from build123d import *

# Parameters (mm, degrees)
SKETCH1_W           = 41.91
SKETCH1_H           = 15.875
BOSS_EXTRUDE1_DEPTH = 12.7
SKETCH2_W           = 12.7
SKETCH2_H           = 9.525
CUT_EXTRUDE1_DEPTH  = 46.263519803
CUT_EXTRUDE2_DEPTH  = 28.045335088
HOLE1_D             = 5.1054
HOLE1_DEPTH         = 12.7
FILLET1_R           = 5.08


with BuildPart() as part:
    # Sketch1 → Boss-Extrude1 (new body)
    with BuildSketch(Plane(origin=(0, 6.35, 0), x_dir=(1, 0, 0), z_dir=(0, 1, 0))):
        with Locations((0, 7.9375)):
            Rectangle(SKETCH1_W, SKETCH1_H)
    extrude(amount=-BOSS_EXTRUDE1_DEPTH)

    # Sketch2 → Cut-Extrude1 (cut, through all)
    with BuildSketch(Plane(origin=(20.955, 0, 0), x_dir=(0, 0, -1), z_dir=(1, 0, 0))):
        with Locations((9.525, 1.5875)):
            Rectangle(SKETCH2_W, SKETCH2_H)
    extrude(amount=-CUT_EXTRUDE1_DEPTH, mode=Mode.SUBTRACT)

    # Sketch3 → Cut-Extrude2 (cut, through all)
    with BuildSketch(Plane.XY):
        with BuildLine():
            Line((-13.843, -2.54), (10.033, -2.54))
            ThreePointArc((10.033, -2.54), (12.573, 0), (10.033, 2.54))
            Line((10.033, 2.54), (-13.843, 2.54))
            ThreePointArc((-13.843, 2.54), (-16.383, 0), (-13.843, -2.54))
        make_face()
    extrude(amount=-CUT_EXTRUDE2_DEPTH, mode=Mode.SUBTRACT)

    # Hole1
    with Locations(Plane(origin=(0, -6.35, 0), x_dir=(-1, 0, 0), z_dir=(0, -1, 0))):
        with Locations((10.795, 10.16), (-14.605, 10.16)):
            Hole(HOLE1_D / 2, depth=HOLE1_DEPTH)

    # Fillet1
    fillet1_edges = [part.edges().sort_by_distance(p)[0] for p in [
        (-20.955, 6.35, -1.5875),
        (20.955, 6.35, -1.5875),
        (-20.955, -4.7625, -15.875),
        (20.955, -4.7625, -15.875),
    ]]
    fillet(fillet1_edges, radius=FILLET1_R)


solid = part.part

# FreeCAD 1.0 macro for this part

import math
import FreeCAD as App
import Part
import Sketcher
from FreeCAD import Vector
Q = App.Units.Quantity


def edges_at(feature, points):
    """Names of the edges that pass closest to the given points."""
    edges = feature.Shape.Edges
    near = lambda p: min(range(len(edges)), key=lambda i: edges[i].distToShape(Part.Vertex(*p))[0])
    return sorted({f"Edge{near(p) + 1}" for p in points})

doc = App.newDocument("Part")
body = doc.addObject("PartDesign::Body", "Body")

sketch1 = body.newObject("Sketcher::SketchObject", "Sketch")
sketch1.AttachmentSupport = (doc.getObject("XZ_Plane"), [""])
sketch1.MapMode = "FlatFace"
sketch1.AttachmentOffset = App.Placement(Vector(0, 0, -0.25 * 25.4), App.Rotation())
sketch1.addGeometry(Part.LineSegment(Vector(-20.955, -15.875, 0), Vector(-20.955, 0, 0)), False)
sketch1.addGeometry(Part.LineSegment(Vector(-20.955, 0, 0), Vector(20.955, 0, 0)), False)
sketch1.addGeometry(Part.LineSegment(Vector(20.955, 0, 0), Vector(20.955, -15.875, 0)), False)
sketch1.addGeometry(Part.LineSegment(Vector(20.955, -15.875, 0), Vector(-20.955, -15.875, 0)), False)
sketch1.addConstraint(Sketcher.Constraint("Coincident", 0, 2, 1, 1))
sketch1.addConstraint(Sketcher.Constraint("Coincident", 1, 2, 2, 1))
sketch1.addConstraint(Sketcher.Constraint("Coincident", 2, 2, 3, 1))
sketch1.addConstraint(Sketcher.Constraint("Coincident", 3, 2, 0, 1))
sketch1.addConstraint(Sketcher.Constraint("Vertical", 0))
sketch1.addConstraint(Sketcher.Constraint("Horizontal", 1))
sketch1.addConstraint(Sketcher.Constraint("Vertical", 2))
sketch1.addConstraint(Sketcher.Constraint("Horizontal", 3))
sketch1.addConstraint(Sketcher.Constraint("Symmetric", 0, 2, 1, 2, -1, 1))
sketch1.addConstraint(Sketcher.Constraint("DistanceX", 1, 1, 1, 2, Q("1.65 in")))
sketch1.addConstraint(Sketcher.Constraint("DistanceY", 0, 1, 0, 2, Q("0.625 in")))
pad1 = body.newObject("PartDesign::Pad", "Pad")
pad1.Profile = sketch1
pad1.Length = Q("0.5 in")

sketch2 = body.newObject("Sketcher::SketchObject", "Sketch001")
sketch2.AttachmentSupport = (doc.getObject("YZ_Plane"), [""])
sketch2.MapMode = "FlatFace"
sketch2.AttachmentOffset = App.Placement(Vector(0, 0, 0.825 * 25.4), App.Rotation())
sketch2.addGeometry(Part.LineSegment(Vector(6.35, -3.175, 0), Vector(-3.175, -3.175, 0)), False)
sketch2.addGeometry(Part.LineSegment(Vector(-3.175, -3.175, 0), Vector(-3.175, -15.875, 0)), False)
sketch2.addGeometry(Part.LineSegment(Vector(-3.175, -15.875, 0), Vector(6.35, -15.875, 0)), False)
sketch2.addGeometry(Part.LineSegment(Vector(6.35, -15.875, 0), Vector(6.35, -3.175, 0)), False)
sketch2.addConstraint(Sketcher.Constraint("Coincident", 0, 2, 1, 1))
sketch2.addConstraint(Sketcher.Constraint("Coincident", 1, 2, 2, 1))
sketch2.addConstraint(Sketcher.Constraint("Coincident", 2, 2, 3, 1))
sketch2.addConstraint(Sketcher.Constraint("Coincident", 3, 2, 0, 1))
sketch2.addConstraint(Sketcher.Constraint("Horizontal", 0))
sketch2.addConstraint(Sketcher.Constraint("Vertical", 1))
sketch2.addConstraint(Sketcher.Constraint("Horizontal", 2))
sketch2.addConstraint(Sketcher.Constraint("Vertical", 3))
sketch2.addConstraint(Sketcher.Constraint("DistanceY", 1, 2, 1, 1, Q("0.5 in")))
sketch2.addConstraint(Sketcher.Constraint("DistanceX", 0, 2, 0, 1, Q("0.375 in")))
sketch2.addConstraint(Sketcher.Constraint("DistanceX", -1, 1, 2, 2, Q("0.25 in")))
sketch2.addConstraint(Sketcher.Constraint("DistanceY", 0, 2, -1, 1, Q("0.125 in")))
pocket1 = body.newObject("PartDesign::Pocket", "Pocket")
pocket1.Profile = sketch2
pocket1.Type = "ThroughAll"

sketch3 = body.newObject("Sketcher::SketchObject", "Sketch002")
sketch3.AttachmentSupport = (doc.getObject("XY_Plane"), [""])
sketch3.MapMode = "FlatFace"
sketch3.addGeometry(Part.LineSegment(Vector(-13.843, -2.54, 0), Vector(10.033, -2.54, 0)), False)
sketch3.addGeometry(Part.ArcOfCircle(Part.Circle(Vector(10.033, 0, 0), Vector(0, 0, 1), 2.54), math.radians(-90), math.radians(90)), False)
sketch3.addGeometry(Part.LineSegment(Vector(10.033, 2.54, 0), Vector(-13.843, 2.54, 0)), False)
sketch3.addGeometry(Part.ArcOfCircle(Part.Circle(Vector(-13.843, 0, 0), Vector(0, 0, 1), 2.54), math.radians(90), math.radians(270)), False)
sketch3.addConstraint(Sketcher.Constraint("Tangent", 0, 2, 1, 1))
sketch3.addConstraint(Sketcher.Constraint("Tangent", 1, 2, 2, 1))
sketch3.addConstraint(Sketcher.Constraint("Tangent", 2, 2, 3, 1))
sketch3.addConstraint(Sketcher.Constraint("Tangent", 3, 2, 0, 1))
sketch3.addConstraint(Sketcher.Constraint("Horizontal", 0))
sketch3.addConstraint(Sketcher.Constraint("Horizontal", 2))
sketch3.addConstraint(Sketcher.Constraint("PointOnObject", 1, 3, -1))
sketch3.addConstraint(Sketcher.Constraint("Radius", 1, Q("0.1 in")))
sketch3.addConstraint(Sketcher.Constraint("DistanceX", 0, 1, 0, 2, Q("0.94 in")))
sketch3.addConstraint(Sketcher.Constraint("DistanceX", -1, 1, 1, 3, Q("0.395 in")))
pocket2 = body.newObject("PartDesign::Pocket", "Pocket001")
pocket2.Profile = sketch3
pocket2.Type = "ThroughAll"

sketch4 = body.newObject("Sketcher::SketchObject", "Sketch003")
sketch4.AttachmentSupport = (doc.getObject("XZ_Plane"), [""])
sketch4.MapMode = "FlatFace"
sketch4.AttachmentOffset = App.Placement(Vector(0, 0, 0.25 * 25.4), App.Rotation())
sketch4.addGeometry(Part.Circle(Vector(-10.795, -10.16, 0), Vector(0, 0, 1), 2.5527), False)
sketch4.addGeometry(Part.Circle(Vector(14.605, -10.16, 0), Vector(0, 0, 1), 2.5527), False)
sketch4.addConstraint(Sketcher.Constraint("Equal", 0, 1))
sketch4.addConstraint(Sketcher.Constraint("Horizontal", 0, 3, 1, 3))
sketch4.addConstraint(Sketcher.Constraint("Diameter", 0, Q("0.201 in")))
sketch4.addConstraint(Sketcher.Constraint("DistanceX", 0, 3, 1, 3, Q("1 in")))
sketch4.addConstraint(Sketcher.Constraint("DistanceY", 0, 3, -1, 1, Q("0.4 in")))
sketch4.addConstraint(Sketcher.Constraint("DistanceX", 0, 3, -1, 1, Q("0.425 in")))
doc.recompute()
hole = body.newObject("PartDesign::Hole", "Hole")
hole.Profile = sketch4
hole.ThreadType = "None"
hole.Diameter = Q("0.201 in")
hole.DepthType = "Dimension"
hole.Depth = Q("0.5 in")
hole.DrillPoint = "Flat"
doc.recompute()

fillet = body.newObject("PartDesign::Fillet", "Fillet")
fillet.Base = (hole, edges_at(hole, [
    (-20.955, 6.35, -1.587),
    (20.955, 6.35, -1.587),
    (-20.955, -4.763, -15.875),
    (20.955, -4.763, -15.875),
]))
fillet.Radius = Q("0.2 in")

doc.recompute()
